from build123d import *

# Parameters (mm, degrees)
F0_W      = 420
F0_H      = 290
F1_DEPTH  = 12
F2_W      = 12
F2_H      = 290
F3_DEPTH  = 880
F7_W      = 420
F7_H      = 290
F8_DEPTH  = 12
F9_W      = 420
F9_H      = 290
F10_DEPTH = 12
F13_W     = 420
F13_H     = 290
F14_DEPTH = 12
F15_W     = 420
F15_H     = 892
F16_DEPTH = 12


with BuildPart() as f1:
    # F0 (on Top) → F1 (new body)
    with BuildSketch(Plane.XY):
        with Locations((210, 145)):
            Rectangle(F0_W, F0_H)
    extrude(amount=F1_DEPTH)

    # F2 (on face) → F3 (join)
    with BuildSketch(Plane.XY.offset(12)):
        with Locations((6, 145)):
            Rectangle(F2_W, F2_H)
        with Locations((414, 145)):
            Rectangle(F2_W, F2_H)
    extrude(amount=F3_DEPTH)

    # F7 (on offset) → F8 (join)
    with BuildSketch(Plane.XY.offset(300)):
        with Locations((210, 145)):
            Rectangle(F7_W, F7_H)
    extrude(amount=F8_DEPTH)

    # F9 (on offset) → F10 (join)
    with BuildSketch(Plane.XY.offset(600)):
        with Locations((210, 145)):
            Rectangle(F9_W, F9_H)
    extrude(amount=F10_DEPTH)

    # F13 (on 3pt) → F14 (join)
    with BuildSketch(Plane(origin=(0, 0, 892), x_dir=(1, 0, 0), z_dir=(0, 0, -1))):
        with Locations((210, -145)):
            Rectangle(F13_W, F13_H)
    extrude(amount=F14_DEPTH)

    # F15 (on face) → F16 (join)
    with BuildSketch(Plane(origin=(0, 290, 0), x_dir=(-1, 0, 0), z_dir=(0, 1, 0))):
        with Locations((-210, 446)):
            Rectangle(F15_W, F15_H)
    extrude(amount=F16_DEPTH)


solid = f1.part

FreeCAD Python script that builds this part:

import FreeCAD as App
import Part
import Sketcher
from FreeCAD import Vector


def add_polygon(sketch, points):
    """Adds a closed chain of lines whose ends are joined by coincident constraints."""
    first, n = sketch.GeometryCount, len(points)
    for a, b in zip(points, points[1:] + points[:1]):
        sketch.addGeometry(Part.LineSegment(App.Vector(*a, 0), App.Vector(*b, 0)), False)
    for i in range(n):
        sketch.addConstraint(Sketcher.Constraint("Coincident", first + i, 2, first + (i + 1) % n, 1))

doc = App.newDocument("Part")
body = doc.addObject("PartDesign::Body", "Body")

# Sketch on XY plane
sketch1 = body.newObject("Sketcher::SketchObject", "Sketch")
sketch1.AttachmentSupport = (doc.getObject("XY_Plane"), [""])
sketch1.MapMode = "FlatFace"
add_polygon(sketch1, [(0, 290), (0, 0), (420, 0), (420, 290)])  # lines 0-3
sketch1.addConstraint([
    Sketcher.Constraint("Vertical", 0),
    Sketcher.Constraint("Horizontal", 1),
    Sketcher.Constraint("Vertical", 2),
    Sketcher.Constraint("Horizontal", 3),
    Sketcher.Constraint("Coincident", 0, 2, -1, 1),
    Sketcher.Constraint("DistanceX", 1, 1, 1, 2, 420.0),
    Sketcher.Constraint("DistanceY", 0, 2, 0, 1, 290.0),
])
pad1 = body.newObject("PartDesign::Pad", "Pad")
pad1.Profile = sketch1
pad1.Length = 12

# Sketch on XY plane
sketch2 = body.newObject("Sketcher::SketchObject", "Sketch001")
sketch2.AttachmentSupport = (doc.getObject("XY_Plane"), [""])
sketch2.MapMode = "FlatFace"
sketch2.AttachmentOffset = App.Placement(Vector(0, 0, 12), App.Rotation())
add_polygon(sketch2, [(0, 290), (0, 0), (12, 0), (12, 290)])  # lines 0-3
add_polygon(sketch2, [(408, 290), (408, 0), (420, 0), (420, 290)])  # lines 4-7
sketch2.addConstraint([
    Sketcher.Constraint("Vertical", 0),
    Sketcher.Constraint("Horizontal", 1),
    Sketcher.Constraint("Vertical", 2),
    Sketcher.Constraint("Horizontal", 3),
    Sketcher.Constraint("Vertical", 4),
    Sketcher.Constraint("Horizontal", 5),
    Sketcher.Constraint("Vertical", 6),
    Sketcher.Constraint("Horizontal", 7),
    Sketcher.Constraint("Coincident", 0, 2, -1, 1),
    Sketcher.Constraint("PointOnObject", 4, 2, -1),
    Sketcher.Constraint("Horizontal", 3, 2, 6, 2),
    Sketcher.Constraint("Equal", 3, 5),
    Sketcher.Constraint("DistanceX", 1, 1, 1, 2, 12.0),
    Sketcher.Constraint("DistanceY", 0, 2, 0, 1, 290.0),
    Sketcher.Constraint("DistanceX", -1, 1, 4, 2, 408.0),
])
pad2 = body.newObject("PartDesign::Pad", "Pad001")
pad2.Profile = sketch2
pad2.Length = 880

# Sketch on XY plane
sketch3 = body.newObject("Sketcher::SketchObject", "Sketch002")
sketch3.AttachmentSupport = (doc.getObject("XY_Plane"), [""])
sketch3.MapMode = "FlatFace"
sketch3.AttachmentOffset = App.Placement(Vector(0, 0, 300), App.Rotation())
add_polygon(sketch3, [(0, 290), (0, 0), (420, 0), (420, 290)])  # lines 0-3
sketch3.addConstraint([
    Sketcher.Constraint("Vertical", 0),
    Sketcher.Constraint("Horizontal", 1),
    Sketcher.Constraint("Vertical", 2),
    Sketcher.Constraint("Horizontal", 3),
    Sketcher.Constraint("Coincident", 0, 2, -1, 1),
    Sketcher.Constraint("DistanceX", 1, 1, 1, 2, 420.0),
    Sketcher.Constraint("DistanceY", 0, 2, 0, 1, 290.0),
])
pad3 = body.newObject("PartDesign::Pad", "Pad002")
pad3.Profile = sketch3
pad3.Length = 12

# Sketch on XY plane
sketch4 = body.newObject("Sketcher::SketchObject", "Sketch003")
sketch4.AttachmentSupport = (doc.getObject("XY_Plane"), [""])
sketch4.MapMode = "FlatFace"
sketch4.AttachmentOffset = App.Placement(Vector(0, 0, 600), App.Rotation())
add_polygon(sketch4, [(0, 290), (0, 0), (420, 0), (420, 290)])  # lines 0-3
sketch4.addConstraint([
    Sketcher.Constraint("Vertical", 0),
    Sketcher.Constraint("Horizontal", 1),
    Sketcher.Constraint("Vertical", 2),
    Sketcher.Constraint("Horizontal", 3),
    Sketcher.Constraint("Coincident", 0, 2, -1, 1),
    Sketcher.Constraint("DistanceX", 1, 1, 1, 2, 420.0),
    Sketcher.Constraint("DistanceY", 0, 2, 0, 1, 290.0),
])
pad4 = body.newObject("PartDesign::Pad", "Pad003")
pad4.Profile = sketch4
pad4.Length = 12

# Sketch on XY plane
sketch5 = body.newObject("Sketcher::SketchObject", "Sketch004")
sketch5.AttachmentSupport = (doc.getObject("XY_Plane"), [""])
sketch5.MapMode = "FlatFace"
sketch5.AttachmentOffset = App.Placement(Vector(0, 0, 892), App.Rotation())
add_polygon(sketch5, [(0, 0), (0, 290), (420, 290), (420, 0)])  # lines 0-3
sketch5.addConstraint([
    Sketcher.Constraint("Vertical", 0),
    Sketcher.Constraint("Horizontal", 1),
    Sketcher.Constraint("Vertical", 2),
    Sketcher.Constraint("Horizontal", 3),
    Sketcher.Constraint("Coincident", 3, 2, -1, 1),
    Sketcher.Constraint("DistanceX", 1, 1, 1, 2, 420.0),
    Sketcher.Constraint("DistanceY", 0, 1, 0, 2, 290.0),
])
pad5 = body.newObject("PartDesign::Pad", "Pad004")
pad5.Profile = sketch5
pad5.Length = 12
pad5.Reversed = True

# Sketch on XZ plane
sketch6 = body.newObject("Sketcher::SketchObject", "Sketch005")
sketch6.AttachmentSupport = (doc.getObject("XZ_Plane"), [""])
sketch6.MapMode = "FlatFace"
sketch6.AttachmentOffset = App.Placement(Vector(0, 0, -290), App.Rotation())
add_polygon(sketch6, [(420, 892), (420, 0), (0, 0), (0, 892)])  # lines 0-3
sketch6.addConstraint([
    Sketcher.Constraint("Vertical", 0),
    Sketcher.Constraint("Horizontal", 1),
    Sketcher.Constraint("Vertical", 2),
    Sketcher.Constraint("Horizontal", 3),
    Sketcher.Constraint("Coincident", 1, 2, -1, 1),
    Sketcher.Constraint("DistanceX", 1, 2, 1, 1, 420.0),
    Sketcher.Constraint("DistanceY", 0, 2, 0, 1, 892.0),
])
pad6 = body.newObject("PartDesign::Pad", "Pad005")
pad6.Profile = sketch6
pad6.Length = 12
pad6.Reversed = True

doc.recompute()
